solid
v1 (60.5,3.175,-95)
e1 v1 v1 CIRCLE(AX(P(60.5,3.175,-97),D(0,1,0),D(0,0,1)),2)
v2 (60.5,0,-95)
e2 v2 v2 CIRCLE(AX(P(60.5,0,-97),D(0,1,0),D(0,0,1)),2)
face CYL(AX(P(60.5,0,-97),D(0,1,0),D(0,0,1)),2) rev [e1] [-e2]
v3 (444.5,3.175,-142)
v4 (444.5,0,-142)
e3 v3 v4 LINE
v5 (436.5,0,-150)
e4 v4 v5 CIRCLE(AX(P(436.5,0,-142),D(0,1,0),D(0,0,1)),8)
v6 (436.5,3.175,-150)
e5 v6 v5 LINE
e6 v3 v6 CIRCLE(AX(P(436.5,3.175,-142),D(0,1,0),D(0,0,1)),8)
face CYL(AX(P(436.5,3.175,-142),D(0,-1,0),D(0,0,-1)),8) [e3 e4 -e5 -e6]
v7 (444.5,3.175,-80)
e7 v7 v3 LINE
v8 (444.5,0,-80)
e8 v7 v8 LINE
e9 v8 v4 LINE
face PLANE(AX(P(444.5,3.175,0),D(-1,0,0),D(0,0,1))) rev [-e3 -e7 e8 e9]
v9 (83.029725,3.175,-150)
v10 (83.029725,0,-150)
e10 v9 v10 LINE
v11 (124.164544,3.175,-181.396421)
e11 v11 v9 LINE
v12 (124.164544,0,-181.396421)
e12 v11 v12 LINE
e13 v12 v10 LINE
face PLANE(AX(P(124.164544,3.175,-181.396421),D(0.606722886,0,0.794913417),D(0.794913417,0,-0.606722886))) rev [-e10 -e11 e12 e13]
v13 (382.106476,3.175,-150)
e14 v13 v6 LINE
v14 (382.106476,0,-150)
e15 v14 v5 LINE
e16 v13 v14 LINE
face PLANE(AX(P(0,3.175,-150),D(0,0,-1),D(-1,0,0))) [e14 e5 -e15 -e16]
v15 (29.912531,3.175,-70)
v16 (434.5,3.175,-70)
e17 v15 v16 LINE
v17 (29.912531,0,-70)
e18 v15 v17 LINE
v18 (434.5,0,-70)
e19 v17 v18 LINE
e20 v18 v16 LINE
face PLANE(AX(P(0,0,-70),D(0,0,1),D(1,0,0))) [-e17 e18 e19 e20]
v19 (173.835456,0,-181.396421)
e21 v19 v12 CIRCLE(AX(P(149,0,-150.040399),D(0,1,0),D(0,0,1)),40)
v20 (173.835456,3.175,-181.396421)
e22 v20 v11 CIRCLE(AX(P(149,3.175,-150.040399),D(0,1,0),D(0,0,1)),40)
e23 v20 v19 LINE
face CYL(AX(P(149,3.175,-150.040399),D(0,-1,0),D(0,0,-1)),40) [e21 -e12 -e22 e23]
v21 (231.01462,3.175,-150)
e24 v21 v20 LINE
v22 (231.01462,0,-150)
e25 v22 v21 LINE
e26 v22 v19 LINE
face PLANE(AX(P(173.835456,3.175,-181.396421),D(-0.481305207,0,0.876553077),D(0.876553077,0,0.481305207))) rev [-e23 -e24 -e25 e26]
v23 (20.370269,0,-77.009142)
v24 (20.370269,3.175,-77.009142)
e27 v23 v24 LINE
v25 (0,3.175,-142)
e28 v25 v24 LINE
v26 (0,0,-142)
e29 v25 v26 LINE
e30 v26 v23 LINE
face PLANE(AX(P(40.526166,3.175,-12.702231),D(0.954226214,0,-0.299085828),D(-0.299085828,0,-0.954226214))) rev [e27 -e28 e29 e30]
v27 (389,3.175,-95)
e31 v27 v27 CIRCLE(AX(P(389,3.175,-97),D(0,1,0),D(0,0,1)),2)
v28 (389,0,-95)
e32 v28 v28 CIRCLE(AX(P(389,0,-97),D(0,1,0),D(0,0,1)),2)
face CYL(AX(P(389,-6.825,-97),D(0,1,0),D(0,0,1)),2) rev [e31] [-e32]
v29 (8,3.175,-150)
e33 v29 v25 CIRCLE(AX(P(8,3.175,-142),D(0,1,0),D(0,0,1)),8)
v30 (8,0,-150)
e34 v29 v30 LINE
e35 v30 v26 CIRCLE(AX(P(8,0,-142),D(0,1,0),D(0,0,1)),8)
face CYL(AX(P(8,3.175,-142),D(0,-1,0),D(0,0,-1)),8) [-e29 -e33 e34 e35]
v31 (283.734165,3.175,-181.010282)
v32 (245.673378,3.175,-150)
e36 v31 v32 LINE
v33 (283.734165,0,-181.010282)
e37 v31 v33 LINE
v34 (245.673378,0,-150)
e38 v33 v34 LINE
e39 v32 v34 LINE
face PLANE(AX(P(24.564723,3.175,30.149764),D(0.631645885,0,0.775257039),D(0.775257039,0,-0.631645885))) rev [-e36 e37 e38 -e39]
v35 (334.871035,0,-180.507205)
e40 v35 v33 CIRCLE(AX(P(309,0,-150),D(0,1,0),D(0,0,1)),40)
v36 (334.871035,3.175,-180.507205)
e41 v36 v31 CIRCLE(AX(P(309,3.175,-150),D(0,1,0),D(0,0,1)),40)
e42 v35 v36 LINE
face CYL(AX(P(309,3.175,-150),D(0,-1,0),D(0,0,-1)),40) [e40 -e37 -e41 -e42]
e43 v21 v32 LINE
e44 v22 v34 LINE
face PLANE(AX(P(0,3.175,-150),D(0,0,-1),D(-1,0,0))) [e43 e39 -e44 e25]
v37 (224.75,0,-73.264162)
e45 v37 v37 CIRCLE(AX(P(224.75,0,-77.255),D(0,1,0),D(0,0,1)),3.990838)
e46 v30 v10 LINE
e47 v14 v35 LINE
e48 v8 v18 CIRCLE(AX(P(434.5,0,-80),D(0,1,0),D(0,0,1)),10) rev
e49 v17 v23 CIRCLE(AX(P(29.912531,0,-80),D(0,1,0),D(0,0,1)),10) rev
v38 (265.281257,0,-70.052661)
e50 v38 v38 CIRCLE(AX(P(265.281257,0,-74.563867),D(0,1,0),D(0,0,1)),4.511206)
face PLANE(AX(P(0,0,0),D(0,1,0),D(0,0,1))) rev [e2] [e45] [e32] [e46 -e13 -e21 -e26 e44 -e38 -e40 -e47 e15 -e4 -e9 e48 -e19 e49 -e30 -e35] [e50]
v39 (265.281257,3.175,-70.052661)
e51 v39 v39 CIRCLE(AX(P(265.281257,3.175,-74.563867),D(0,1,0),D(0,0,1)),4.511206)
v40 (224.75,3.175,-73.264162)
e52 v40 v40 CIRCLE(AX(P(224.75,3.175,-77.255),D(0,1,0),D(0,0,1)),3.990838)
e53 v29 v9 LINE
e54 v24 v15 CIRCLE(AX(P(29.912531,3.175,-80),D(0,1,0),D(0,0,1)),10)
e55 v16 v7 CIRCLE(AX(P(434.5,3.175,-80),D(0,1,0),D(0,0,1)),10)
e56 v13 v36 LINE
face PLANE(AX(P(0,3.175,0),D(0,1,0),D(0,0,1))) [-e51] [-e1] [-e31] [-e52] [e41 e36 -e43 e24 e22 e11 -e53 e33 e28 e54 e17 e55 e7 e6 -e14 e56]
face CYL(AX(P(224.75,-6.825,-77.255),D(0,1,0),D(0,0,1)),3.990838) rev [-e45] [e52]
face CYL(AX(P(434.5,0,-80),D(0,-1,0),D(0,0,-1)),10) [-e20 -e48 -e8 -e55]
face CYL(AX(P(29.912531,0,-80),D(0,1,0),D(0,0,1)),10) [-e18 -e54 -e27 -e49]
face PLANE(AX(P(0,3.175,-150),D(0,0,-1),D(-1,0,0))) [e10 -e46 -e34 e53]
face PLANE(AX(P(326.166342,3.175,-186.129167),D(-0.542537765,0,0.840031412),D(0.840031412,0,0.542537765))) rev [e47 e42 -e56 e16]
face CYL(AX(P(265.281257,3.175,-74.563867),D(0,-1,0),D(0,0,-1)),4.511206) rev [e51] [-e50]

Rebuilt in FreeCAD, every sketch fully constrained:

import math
import FreeCAD as App
import Part
import Sketcher

V = App.Vector


def edges_at(feature, points):
    """Names of the edges that pass closest to the given points."""
    edges = feature.Shape.Edges
    near = lambda p: min(range(len(edges)), key=lambda i: edges[i].distToShape(Part.Vertex(*p))[0])
    return sorted({f"Edge{near(p) + 1}" for p in points})


def add_polygon(sketch, points):
    """Adds a closed chain of lines whose ends are joined by coincident constraints."""
    first, n = sketch.GeometryCount, len(points)
    for a, b in zip(points, points[1:] + points[:1]):
        sketch.addGeometry(Part.LineSegment(App.Vector(*a, 0), App.Vector(*b, 0)), False)
    for i in range(n):
        sketch.addConstraint(Sketcher.Constraint("Coincident", first + i, 2, first + (i + 1) % n, 1))

doc = App.newDocument("Part")
body = doc.addObject("PartDesign::Body", "Body")

# Sketch on XZ plane
sketch1 = body.newObject("Sketcher::SketchObject", "Sketch")
sketch1.AttachmentSupport = (doc.getObject("XZ_Plane"), [""])
sketch1.MapMode = "FlatFace"
sketch1.addGeometry([
    Part.ArcOfCircle(Part.Circle(V(8, -142, 0), V(0, 0, 1), 8), math.radians(-180), math.radians(-90)),  # 0
    Part.LineSegment(V(0, -142, 0), V(42, -8, 0)),  # 1
    Part.ArcOfCircle(Part.Circle(V(50, -8, 0), V(0, 0, 1), 8), math.radians(90), math.radians(180)),  # 2
    Part.LineSegment(V(50, 0, 0), V(436.5, 0, 0)),  # 3
    Part.ArcOfCircle(Part.Circle(V(436.5, -8, 0), V(0, 0, 1), 8), math.radians(0), math.radians(90)),  # 4
    Part.LineSegment(V(444.5, -8, 0), V(444.5, -142, 0)),  # 5
    Part.ArcOfCircle(Part.Circle(V(436.5, -142, 0), V(0, 0, 1), 8), math.radians(-90), math.radians(0)),  # 6
    Part.LineSegment(V(436.5, -150, 0), V(8, -150, 0)),  # 7
    Part.Circle(V(265.281257, -74.563867, 0), V(0, 0, 1), 4.511206),  # 8
    Part.Circle(V(146.26937, -139.840399, 0), V(0, 0, 1), 3.716178),  # 9
    Part.Circle(V(307.606476, -140.710564, 0), V(0, 0, 1), 4.31356),  # 10
], False)
sketch1.addConstraint([
    Sketcher.Constraint("Coincident", 0, 1, 1, 1),
    Sketcher.Constraint("Coincident", 1, 2, 2, 2),
    Sketcher.Constraint("Tangent", 2, 1, 3, 1),
    Sketcher.Constraint("Tangent", 3, 2, 4, 2),
    Sketcher.Constraint("Tangent", 4, 1, 5, 1),
    Sketcher.Constraint("Tangent", 5, 2, 6, 2),
    Sketcher.Constraint("Tangent", 6, 1, 7, 1),
    Sketcher.Constraint("Tangent", 7, 2, 0, 2),
    Sketcher.Constraint("Horizontal", 3),
    Sketcher.Constraint("Vertical", 5),
    Sketcher.Constraint("Horizontal", 7),
    Sketcher.Constraint("Equal", 0, 2),
    Sketcher.Constraint("Equal", 2, 4),
    Sketcher.Constraint("Equal", 4, 6),
    Sketcher.Constraint("PointOnObject", 0, 1, -2),
    Sketcher.Constraint("PointOnObject", 2, 1, -1),
    Sketcher.Constraint("Horizontal", 6, 3, 0, 1),
    Sketcher.Constraint("Horizontal", 4, 3, 1, 2),
    Sketcher.Constraint("Radius", 0, 8.0),
    Sketcher.Constraint("DistanceY", 5, 2, 5, 1, 134.0),
    Sketcher.Constraint("DistanceX", 3, 1, 3, 2, 386.5),
    Sketcher.Constraint("DistanceX", 7, 2, 7, 1, 428.5),
    Sketcher.Constraint("Diameter", 8, 9.022412),
    Sketcher.Constraint("Diameter", 10, 8.627121),
    Sketcher.Constraint("Diameter", 9, 7.432357),
    Sketcher.Constraint("DistanceY", 9, 3, -1, 1, 139.840399),
    Sketcher.Constraint("DistanceX", -1, 1, 9, 3, 146.26937),
    Sketcher.Constraint("DistanceY", 9, 3, 8, 3, 65.276532),
    Sketcher.Constraint("DistanceX", 8, 3, 10, 3, 42.325218),
    Sketcher.Constraint("DistanceX", -1, 1, 8, 3, 265.281257),
    Sketcher.Constraint("DistanceY", 10, 3, -1, 1, 140.710564),
])
pad1 = body.newObject("PartDesign::Pad", "Pad")
pad1.Profile = sketch1
pad1.Length = 3.175
pad1.Reversed = True

# Sketch on XY plane
sketch2 = body.newObject("Sketcher::SketchObject", "Sketch001")
sketch2.AttachmentSupport = (doc.getObject("XY_Plane"), [""])
sketch2.MapMode = "FlatFace"
add_polygon(sketch2, [(-78.554618, 38.03063), (-78.554618, -22.941913), (518.911685, -22.941913), (518.911685, 38.03063)])  # lines 0-3
sketch2.addConstraint([
    Sketcher.Constraint("Vertical", 0),
    Sketcher.Constraint("Horizontal", 1),
    Sketcher.Constraint("Vertical", 2),
    Sketcher.Constraint("Horizontal", 3),
    Sketcher.Constraint("DistanceX", 1, 1, 1, 2, 597.466303),
    Sketcher.Constraint("DistanceY", 0, 2, 0, 1, 60.972543),
    Sketcher.Constraint("DistanceX", 0, 2, -1, 1, 78.554618),
    Sketcher.Constraint("DistanceY", -1, 1, 2, 2, 38.03063),
])
pocket1 = body.newObject("PartDesign::Pocket", "Pocket")
pocket1.Profile = sketch2
pocket1.Length = 70
doc.recompute()

fillet = body.newObject("PartDesign::Fillet", "Fillet")
fillet.Base = (pocket1, edges_at(pocket1, [(22.567, 1.587, -70)]))
fillet.Radius = 10
doc.recompute()

fillet2 = body.newObject("PartDesign::Fillet", "Fillet001")
fillet2.Base = (fillet, edges_at(fillet, [(444.5, 1.587, -70)]))
fillet2.Radius = 10

# Sketch on XZ plane
sketch3 = body.newObject("Sketcher::SketchObject", "Sketch002")
sketch3.AttachmentSupport = (doc.getObject("XZ_Plane"), [""])
sketch3.MapMode = "FlatFace"
sketch3.AttachmentOffset = App.Placement(V(0, 0, -3.175), App.Rotation())
sketch3.addGeometry(Part.Circle(V(224.75, -77.255, 0), V(0, 0, 1), 3.990838), False)
sketch3.addConstraint([
    Sketcher.Constraint("DistanceX", -1, 1, 0, 3, 224.75),
    Sketcher.Constraint("Diameter", 0, 7.981675),
    Sketcher.Constraint("DistanceY", 0, 3, -1, 1, 77.255),
])
pocket2 = body.newObject("PartDesign::Pocket", "Pocket001")
pocket2.Profile = sketch3
pocket2.Length = 10
pocket2.Reversed = True

# Sketch on XZ plane
sketch4 = body.newObject("Sketcher::SketchObject", "Sketch003")
sketch4.AttachmentSupport = (doc.getObject("XZ_Plane"), [""])
sketch4.MapMode = "FlatFace"
sketch4.AttachmentOffset = App.Placement(V(0, 0, -3.175), App.Rotation())
sketch4.addGeometry(Part.Circle(V(60.5, -97, 0), V(0, 0, 1), 2), False)
sketch4.addConstraint([
    Sketcher.Constraint("Diameter", 0, 4.0),
    Sketcher.Constraint("DistanceY", 0, 3, -1, 1, 97.0),
    Sketcher.Constraint("DistanceX", -1, 1, 0, 3, 60.5),
])
pocket3 = body.newObject("PartDesign::Pocket", "Pocket002")
pocket3.Profile = sketch4
pocket3.Type = "ThroughAll"
pocket3.Reversed = True

# Sketch on XZ plane
sketch5 = body.newObject("Sketcher::SketchObject", "Sketch004")
sketch5.AttachmentSupport = (doc.getObject("XZ_Plane"), [""])
sketch5.MapMode = "FlatFace"
sketch5.AttachmentOffset = App.Placement(V(0, 0, -3.175), App.Rotation())
sketch5.addGeometry(Part.Circle(V(389, -97, 0), V(0, 0, 1), 2), False)
sketch5.addConstraint([
    Sketcher.Constraint("Diameter", 0, 4.0),
    Sketcher.Constraint("DistanceX", -1, 1, 0, 3, 389.0),
    Sketcher.Constraint("DistanceY", 0, 3, -1, 1, 97.0),
])
pocket4 = body.newObject("PartDesign::Pocket", "Pocket003")
pocket4.Profile = sketch5
pocket4.Length = 10
pocket4.Reversed = True

# Sketch on XZ plane
sketch6 = body.newObject("Sketcher::SketchObject", "Sketch005")
sketch6.AttachmentSupport = (doc.getObject("XZ_Plane"), [""])
sketch6.MapMode = "FlatFace"
sketch6.addGeometry(Part.Circle(V(149, -150.040399, 0), V(0, 0, 1), 40), False)
sketch6.addConstraint([
    Sketcher.Constraint("Diameter", 0, 80.0),
    Sketcher.Constraint("DistanceX", -1, 1, 0, 3, 149.0),
    Sketcher.Constraint("DistanceY", 0, 3, -1, 1, 150.040399),
])
pad2 = body.newObject("PartDesign::Pad", "Pad001")
pad2.Profile = sketch6
pad2.Length = 3.175
pad2.Reversed = True

# Sketch on XZ plane
sketch7 = body.newObject("Sketcher::SketchObject", "Sketch006")
sketch7.AttachmentSupport = (doc.getObject("XZ_Plane"), [""])
sketch7.MapMode = "FlatFace"
add_polygon(sketch7, [(124.164544, -181.396421), (82.702881, -149.750534), (231.468947, -149.750534), (173.835456, -181.396421)])  # lines 0-3
sketch7.addConstraint([
    Sketcher.Constraint("Horizontal", 1),
    Sketcher.Constraint("Horizontal", 3),
    Sketcher.Constraint("DistanceX", 1, 1, 1, 2, 148.766066),
    Sketcher.Constraint("DistanceX", 3, 2, 3, 1, 49.670912),
    Sketcher.Constraint("DistanceX", -1, 1, 0, 2, 82.702881),
    Sketcher.Constraint("DistanceY", 2, 2, -1, 1, 181.396421),
    Sketcher.Constraint("DistanceX", 2, 2, 1, 2, 57.63349),
    Sketcher.Constraint("Distance", 0, 52.158715),
])
pad3 = body.newObject("PartDesign::Pad", "Pad002")
pad3.Profile = sketch7
pad3.Length = 3.175
pad3.Reversed = True

# Sketch on XZ plane
sketch8 = body.newObject("Sketcher::SketchObject", "Sketch007")
sketch8.AttachmentSupport = (doc.getObject("XZ_Plane"), [""])
sketch8.MapMode = "FlatFace"
sketch8.addGeometry([
    Part.LineSegment(V(283.734165, -181.010282, 0), V(245.673378, -150, 0)),
    Part.LineSegment(V(245.673378, -150, 0), V(269, -150, 0)),
    Part.ArcOfCircle(Part.Circle(V(309, -150, 0), V(0, 0, 1), 40), math.radians(-129.171658), math.radians(180)),
], False)
sketch8.addConstraint([
    Sketcher.Constraint("Coincident", 0, 2, 1, 1),
    Sketcher.Constraint("Coincident", 1, 2, 2, 2),
    Sketcher.Constraint("Tangent", 2, 1, 0, 1),
    Sketcher.Constraint("Horizontal", 1),
    Sketcher.Constraint("Horizontal", 2, 3, 0, 2),
    Sketcher.Constraint("Radius", 2, 40.0),
    Sketcher.Constraint("DistanceX", -1, 1, 2, 3, 309.0),
    Sketcher.Constraint("DistanceY", 2, 3, -1, 1, 150.0),
    Sketcher.Constraint("DistanceX", 1, 1, 1, 2, 23.326622),
])
pad4 = body.newObject("PartDesign::Pad", "Pad003")
pad4.Profile = sketch8
pad4.Length = 3.175
pad4.Reversed = True

# Sketch on XZ plane
sketch9 = body.newObject("Sketcher::SketchObject", "Sketch008")
sketch9.AttachmentSupport = (doc.getObject("XZ_Plane"), [""])
sketch9.MapMode = "FlatFace"
add_polygon(sketch9, [(382.106476, -150), (326.166342, -186.129167), (340.39884, -150)])  # lines 0-2
sketch9.addConstraint([
    Sketcher.Constraint("Horizontal", 2),
    Sketcher.Constraint("DistanceY", 1, 2, -1, 1, 150.0),
    Sketcher.Constraint("Distance", 1, 38.83144),
    Sketcher.Constraint("DistanceX", 2, 1, 2, 2, 41.707636),
    Sketcher.Constraint("DistanceX", -1, 1, 0, 2, 326.166342),
    Sketcher.Constraint("DistanceX", -1, 1, 1, 2, 340.39884),
])
pad5 = body.newObject("PartDesign::Pad", "Pad004")
pad5.Profile = sketch9
pad5.Length = 3.175
pad5.Reversed = True

doc.recompute()
